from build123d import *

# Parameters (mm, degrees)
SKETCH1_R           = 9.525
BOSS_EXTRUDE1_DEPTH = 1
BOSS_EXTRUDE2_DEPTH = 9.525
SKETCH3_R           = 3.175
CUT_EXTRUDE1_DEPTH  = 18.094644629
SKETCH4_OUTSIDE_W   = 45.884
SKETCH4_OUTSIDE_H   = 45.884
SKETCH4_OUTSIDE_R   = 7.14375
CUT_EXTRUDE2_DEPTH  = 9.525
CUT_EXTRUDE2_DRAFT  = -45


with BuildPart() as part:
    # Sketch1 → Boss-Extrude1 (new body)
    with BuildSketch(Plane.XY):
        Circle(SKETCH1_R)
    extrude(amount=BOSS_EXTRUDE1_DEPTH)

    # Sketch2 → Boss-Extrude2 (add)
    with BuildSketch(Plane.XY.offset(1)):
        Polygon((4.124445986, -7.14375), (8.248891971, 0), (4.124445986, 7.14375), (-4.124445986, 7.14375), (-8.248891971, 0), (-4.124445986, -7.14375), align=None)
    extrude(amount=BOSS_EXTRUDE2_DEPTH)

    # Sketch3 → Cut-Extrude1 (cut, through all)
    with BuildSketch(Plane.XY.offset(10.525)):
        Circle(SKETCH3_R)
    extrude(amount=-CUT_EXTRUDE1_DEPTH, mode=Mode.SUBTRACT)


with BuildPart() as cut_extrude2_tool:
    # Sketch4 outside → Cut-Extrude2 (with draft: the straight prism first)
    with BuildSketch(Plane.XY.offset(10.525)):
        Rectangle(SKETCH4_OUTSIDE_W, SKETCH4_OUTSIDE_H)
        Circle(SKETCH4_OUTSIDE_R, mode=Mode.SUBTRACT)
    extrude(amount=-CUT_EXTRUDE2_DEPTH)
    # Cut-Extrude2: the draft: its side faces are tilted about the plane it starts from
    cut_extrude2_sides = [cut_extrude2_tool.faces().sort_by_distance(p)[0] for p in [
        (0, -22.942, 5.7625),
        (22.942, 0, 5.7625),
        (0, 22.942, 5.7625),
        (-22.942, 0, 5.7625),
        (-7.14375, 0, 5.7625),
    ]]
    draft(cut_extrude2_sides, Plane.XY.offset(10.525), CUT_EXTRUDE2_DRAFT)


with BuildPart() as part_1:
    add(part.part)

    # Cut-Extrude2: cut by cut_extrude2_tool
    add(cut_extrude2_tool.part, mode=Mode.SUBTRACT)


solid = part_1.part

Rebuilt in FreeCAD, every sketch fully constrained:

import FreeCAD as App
import Part
import Sketcher
from FreeCAD import Vector
Q = App.Units.Quantity


def faces_at(feature, points):
    """Names of the faces that lie closest to the given points."""
    faces = feature.Shape.Faces
    near = lambda p: min(range(len(faces)), key=lambda i: faces[i].distToShape(Part.Vertex(*p))[0])
    return sorted({f"Face{near(p) + 1}" for p in points})


def add_polygon(sketch, points):
    """Adds a closed chain of lines whose ends are joined by coincident constraints."""
    first, n = sketch.GeometryCount, len(points)
    for a, b in zip(points, points[1:] + points[:1]):
        sketch.addGeometry(Part.LineSegment(App.Vector(*a, 0), App.Vector(*b, 0)), False)
    for i in range(n):
        sketch.addConstraint(Sketcher.Constraint("Coincident", first + i, 2, first + (i + 1) % n, 1))

doc = App.newDocument("Part")
params = doc.addObject("Spreadsheet::Sheet", "Params")
for row, (alias, value) in enumerate([
    ("sketch1_diameter", "0.75 in"),
    ("pad1_length", "1 mm"),
    ("pad2_length", "0.375 in"),
    ("sketch3_diameter", "0.25 in"),
    ("sketch4_diameter", "0.5625 in"),
    ("pad3_length", "0.375 in"),
    ("draft_angle", "45 deg"),
], start=1):
    params.set(f"A{row}", alias)
    params.set(f"B{row}", "=" + value)
    params.setAlias(f"B{row}", alias)

body = doc.addObject("PartDesign::Body", "Body")

sketch1 = doc.addObject("Sketcher::SketchObject", "Sketch")
body.addObject(sketch1)
sketch1.AttachmentSupport = (doc.XY_Plane, [""])
sketch1.MapMode = "FlatFace"
sketch1.addGeometry(Part.Circle(Vector(0, 0, 0), Vector(0, 0, 1), 9.525), False)
sketch1.addConstraint([
    Sketcher.Constraint("Coincident", 0, 3, -1, 1),
    Sketcher.Constraint("Diameter", 0, Q("0.75 in")),
])
sketch1.setExpression("Constraints[1]", "Params.sketch1_diameter")
pad1 = doc.addObject("PartDesign::Pad", "Pad")
body.addObject(pad1)
pad1.Profile = sketch1
pad1.setExpression("Length", "Params.pad1_length")

sketch2 = doc.addObject("Sketcher::SketchObject", "Sketch001")
body.addObject(sketch2)
sketch2.AttachmentSupport = (doc.XY_Plane, [""])
sketch2.MapMode = "FlatFace"
sketch2.AttachmentOffset = App.Placement(Vector(0, 0, 1), App.Rotation())
add_polygon(sketch2, [(4.124446, -7.14375), (8.248892, 0), (4.124446, 7.14375), (-4.124446, 7.14375), (-8.248892, 0), (-4.124446, -7.14375)])
sketch2.addConstraint([
    Sketcher.Constraint("Horizontal", 2),
    Sketcher.Constraint("Horizontal", 5),
    Sketcher.Constraint("Symmetric", 0, 2, 3, 2, -1, 1),
    Sketcher.Constraint("Symmetric", 1, 2, 4, 2, -1, 1),
    Sketcher.Constraint("PointOnObject", 0, 2, -1),
    Sketcher.Constraint("Parallel", 0, 3),
    Sketcher.Constraint("Vertical", 2, 2, 4, 2),
    Sketcher.Constraint("Angle", 0, Q("60 deg")),
    Sketcher.Constraint("DistanceY", -1, 1, 1, 2, Q("0.28125 in")),
    Sketcher.Constraint("DistanceX", 2, 2, 2, 1, 8.248892),
])
pad2 = doc.addObject("PartDesign::Pad", "Pad001")
body.addObject(pad2)
pad2.Profile = sketch2
pad2.setExpression("Length", "Params.pad2_length")

sketch3 = doc.addObject("Sketcher::SketchObject", "Sketch002")
body.addObject(sketch3)
sketch3.AttachmentSupport = (doc.XY_Plane, [""])
sketch3.MapMode = "FlatFace"
sketch3.AttachmentOffset = App.Placement(Vector(0, 0, 10.525), App.Rotation())
sketch3.addGeometry(Part.Circle(Vector(0, 0, 0), Vector(0, 0, 1), 3.175), False)
sketch3.addConstraint([
    Sketcher.Constraint("Coincident", 0, 3, -1, 1),
    Sketcher.Constraint("Diameter", 0, Q("0.25 in")),
])
sketch3.setExpression("Constraints[1]", "Params.sketch3_diameter")
pocket1 = doc.addObject("PartDesign::Pocket", "Pocket")
body.addObject(pocket1)
pocket1.Profile = sketch3
pocket1.Type = "ThroughAll"
body2 = doc.addObject("PartDesign::Body", "Body001")

sketch4 = doc.addObject("Sketcher::SketchObject", "Sketch003")
body2.addObject(sketch4)
sketch4.AttachmentSupport = (doc.getObject("XY_Plane001"), [""])
sketch4.MapMode = "FlatFace"
sketch4.AttachmentOffset = App.Placement(Vector(0, 0, 10.525), App.Rotation())
add_polygon(sketch4, [(-22.942, 22.942), (-22.942, -22.942), (22.942, -22.942), (22.942, 22.942)])
sketch4.addGeometry(Part.Circle(Vector(0, 0, 0), Vector(0, 0, 1), 7.14375), False)
sketch4.addConstraint([
    Sketcher.Constraint("Vertical", 0),
    Sketcher.Constraint("Horizontal", 1),
    Sketcher.Constraint("Vertical", 2),
    Sketcher.Constraint("Horizontal", 3),
    Sketcher.Constraint("Coincident", 4, 3, -1, 1),
    Sketcher.Constraint("Symmetric", 0, 2, 2, 2, -1, 1),
    Sketcher.Constraint("Equal", 3, 0),
    Sketcher.Constraint("Diameter", 4, Q("0.5625 in")),
    Sketcher.Constraint("DistanceX", 1, 1, 1, 2, 45.884),
])
sketch4.setExpression("Constraints[11]", "Params.sketch4_diameter")
pad3 = doc.addObject("PartDesign::Pad", "Pad002")
body2.addObject(pad3)
pad3.Profile = sketch4
pad3.setExpression("Length", "Params.pad3_length")
pad3.Reversed = True
doc.recompute()

datumplane = doc.addObject("PartDesign::Plane", "DatumPlane")
body2.addObject(datumplane)
datumplane.AttachmentSupport = (doc.getObject("XY_Plane001"), [""])
datumplane.MapMode = "FlatFace"
datumplane.AttachmentOffset = App.Placement(Vector(0, 0, 10.525), App.Rotation())
draft = doc.addObject("PartDesign::Draft", "Draft")
body2.addObject(draft)
draft.Base = (pad3, faces_at(pad3, [
    (0, -22.942, 5.763),
    (22.942, 0, 5.763),
    (0, 22.942, 5.763),
    (-22.942, 0, 5.763),
    (-7.144, 0, 5.763),
]))
draft.NeutralPlane = (datumplane, [""])
draft.setExpression("Angle", "Params.draft_angle")
draft.Reversed = True
doc.recompute()

boolean = doc.addObject("PartDesign::Boolean", "Boolean")
body.addObject(boolean)
boolean.Type = "Cut"
boolean.addObjects([body2])

doc.recompute()
